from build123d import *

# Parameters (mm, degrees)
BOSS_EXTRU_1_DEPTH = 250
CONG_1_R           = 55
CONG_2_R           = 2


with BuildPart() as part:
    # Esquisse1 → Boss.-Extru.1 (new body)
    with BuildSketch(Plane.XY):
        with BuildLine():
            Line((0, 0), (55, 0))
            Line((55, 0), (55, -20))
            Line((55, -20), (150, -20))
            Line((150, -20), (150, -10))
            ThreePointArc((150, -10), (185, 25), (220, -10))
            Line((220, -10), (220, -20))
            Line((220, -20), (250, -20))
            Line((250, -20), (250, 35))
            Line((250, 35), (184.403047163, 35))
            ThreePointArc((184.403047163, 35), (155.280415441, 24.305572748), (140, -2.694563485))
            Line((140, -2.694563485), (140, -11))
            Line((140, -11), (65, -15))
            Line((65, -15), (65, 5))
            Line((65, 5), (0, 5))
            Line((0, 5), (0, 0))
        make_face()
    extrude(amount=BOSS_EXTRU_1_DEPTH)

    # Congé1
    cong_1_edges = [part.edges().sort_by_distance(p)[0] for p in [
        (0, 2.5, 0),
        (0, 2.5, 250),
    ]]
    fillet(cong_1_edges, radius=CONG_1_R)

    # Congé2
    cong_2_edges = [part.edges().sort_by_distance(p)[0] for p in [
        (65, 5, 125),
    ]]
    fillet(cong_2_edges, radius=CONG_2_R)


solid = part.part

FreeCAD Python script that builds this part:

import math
import FreeCAD as App
import Part
import Sketcher
Q = App.Units.Quantity


def edges_at(feature, points):
    """Names of the edges that pass closest to the given points."""
    edges = feature.Shape.Edges
    near = lambda p: min(range(len(edges)), key=lambda i: edges[i].distToShape(Part.Vertex(*p))[0])
    return sorted({f"Edge{near(p) + 1}" for p in points})

doc = App.newDocument("Part")
params = doc.addObject("Spreadsheet::Sheet", "Params")
for row, (alias, value) in enumerate([
    ("sketch1_radius", "35 mm"),
    ("sketch1_radius2", "45 mm"),
    ("sketch1_width", "55 mm"),
    ("sketch1_width2", "95 mm"),
    ("sketch1_width3", "30 mm"),
    ("pad1_length", "250 mm"),
    ("fillet_radius", "55 mm"),
    ("fillet2_radius", "2 mm"),
], start=1):
    params.set(f"A{row}", alias)
    params.set(f"B{row}", "=" + value)
    params.setAlias(f"B{row}", alias)

body = doc.addObject("PartDesign::Body", "Body")

sketch1 = body.newObject("Sketcher::SketchObject", "Sketch")
sketch1.AttachmentSupport = (doc.getObject("XY_Plane"), [""])
sketch1.MapMode = "FlatFace"
sketch1.addGeometry([
    Part.LineSegment(App.Vector(0, 0, 0), App.Vector(55, 0, 0)),
    Part.LineSegment(App.Vector(55, 0, 0), App.Vector(55, -20, 0)),
    Part.LineSegment(App.Vector(55, -20, 0), App.Vector(150, -20, 0)),
    Part.LineSegment(App.Vector(150, -20, 0), App.Vector(150, -10, 0)),
    Part.ArcOfCircle(Part.Circle(App.Vector(185, -10, 0), App.Vector(0, 0, 1), 35), math.radians(0), math.radians(180)),
    Part.LineSegment(App.Vector(220, -10, 0), App.Vector(220, -20, 0)),
    Part.LineSegment(App.Vector(220, -20, 0), App.Vector(250, -20, 0)),
    Part.LineSegment(App.Vector(250, -20, 0), App.Vector(250, 35, 0)),
    Part.LineSegment(App.Vector(250, 35, 0), App.Vector(184, 35, 0)),
    Part.ArcOfCircle(Part.Circle(App.Vector(184, -10, 0), App.Vector(0, 0, 1), 45), math.radians(90), math.radians(171)),
    Part.LineSegment(App.Vector(140, -3, 0), App.Vector(140, -11, 0)),
    Part.LineSegment(App.Vector(140, -11, 0), App.Vector(65, -15, 0)),
    Part.LineSegment(App.Vector(65, -15, 0), App.Vector(65, 5, 0)),
    Part.LineSegment(App.Vector(65, 5, 0), App.Vector(0, 5, 0)),
    Part.LineSegment(App.Vector(0, 5, 0), App.Vector(0, 0, 0)),
], False)
sketch1.addConstraint([
    Sketcher.Constraint("Coincident", 0, 2, 1, 1),
    Sketcher.Constraint("Coincident", 1, 2, 2, 1),
    Sketcher.Constraint("Coincident", 2, 2, 3, 1),
    Sketcher.Constraint("Tangent", 3, 2, 4, 2),
    Sketcher.Constraint("Tangent", 4, 1, 5, 1),
    Sketcher.Constraint("Coincident", 5, 2, 6, 1),
    Sketcher.Constraint("Coincident", 6, 2, 7, 1),
    Sketcher.Constraint("Coincident", 7, 2, 8, 1),
    Sketcher.Constraint("Tangent", 8, 2, 9, 1),
    Sketcher.Constraint("Coincident", 9, 2, 10, 1),
    Sketcher.Constraint("Coincident", 10, 2, 11, 1),
    Sketcher.Constraint("Coincident", 11, 2, 12, 1),
    Sketcher.Constraint("Coincident", 12, 2, 13, 1),
    Sketcher.Constraint("Coincident", 13, 2, 14, 1),
    Sketcher.Constraint("Coincident", 14, 2, 0, 1),
    Sketcher.Constraint("Horizontal", 0),
    Sketcher.Constraint("Vertical", 1),
    Sketcher.Constraint("Horizontal", 2),
    Sketcher.Constraint("Vertical", 3),
    Sketcher.Constraint("Vertical", 5),
    Sketcher.Constraint("Horizontal", 6),
    Sketcher.Constraint("Vertical", 7),
    Sketcher.Constraint("Horizontal", 8),
    Sketcher.Constraint("Vertical", 10),
    Sketcher.Constraint("Vertical", 12),
    Sketcher.Constraint("Horizontal", 13),
    Sketcher.Constraint("Vertical", 14),
    Sketcher.Constraint("Coincident", 14, 2, -1, 1),
    Sketcher.Constraint("Horizontal", 4, 3, 9, 3),
    Sketcher.Constraint("Horizontal", 2, 2, 5, 2),
    Sketcher.Constraint("Equal", 0, 7),
    Sketcher.Constraint("Equal", 1, 12),
    Sketcher.Constraint("Radius", 4, Q("35 mm")),
    Sketcher.Constraint("Radius", 9, Q("45 mm")),
    Sketcher.Constraint("DistanceX", 0, 1, 0, 2, Q("55 mm")),
    Sketcher.Constraint("DistanceX", 2, 1, 2, 2, Q("95 mm")),
    Sketcher.Constraint("DistanceX", 6, 1, 6, 2, Q("30 mm")),
    Sketcher.Constraint("DistanceX", 13, 2, 13, 1, Q("65 mm")),
    Sketcher.Constraint("DistanceY", 1, 2, 1, 1, Q("20 mm")),
    Sketcher.Constraint("DistanceY", 14, 2, 14, 1, Q("5 mm")),
    Sketcher.Constraint("DistanceX", -1, 1, 9, 2, Q("140 mm")),
    Sketcher.Constraint("DistanceY", 10, 2, -1, 1, Q("11 mm")),
    Sketcher.Constraint("DistanceX", 8, 2, 8, 1, Q("65.596953 mm")),
])
sketch1.setExpression("Constraints[32]", "Params.sketch1_radius")
sketch1.setExpression("Constraints[33]", "Params.sketch1_radius2")
sketch1.setExpression("Constraints[34]", "Params.sketch1_width")
sketch1.setExpression("Constraints[35]", "Params.sketch1_width2")
sketch1.setExpression("Constraints[36]", "Params.sketch1_width3")
pad1 = body.newObject("PartDesign::Pad", "Pad")
pad1.Profile = sketch1
pad1.setExpression("Length", "Params.pad1_length")
doc.recompute()

fillet = body.newObject("PartDesign::Fillet", "Fillet")
fillet.Base = (pad1, edges_at(pad1, [(0, 2.5, 0), (0, 2.5, 250)]))
fillet.setExpression("Radius", "Params.fillet_radius")
doc.recompute()

fillet2 = body.newObject("PartDesign::Fillet", "Fillet001")
fillet2.Base = (fillet, edges_at(fillet, [(65, 5, 125)]))
fillet2.setExpression("Radius", "Params.fillet2_radius")

doc.recompute()
